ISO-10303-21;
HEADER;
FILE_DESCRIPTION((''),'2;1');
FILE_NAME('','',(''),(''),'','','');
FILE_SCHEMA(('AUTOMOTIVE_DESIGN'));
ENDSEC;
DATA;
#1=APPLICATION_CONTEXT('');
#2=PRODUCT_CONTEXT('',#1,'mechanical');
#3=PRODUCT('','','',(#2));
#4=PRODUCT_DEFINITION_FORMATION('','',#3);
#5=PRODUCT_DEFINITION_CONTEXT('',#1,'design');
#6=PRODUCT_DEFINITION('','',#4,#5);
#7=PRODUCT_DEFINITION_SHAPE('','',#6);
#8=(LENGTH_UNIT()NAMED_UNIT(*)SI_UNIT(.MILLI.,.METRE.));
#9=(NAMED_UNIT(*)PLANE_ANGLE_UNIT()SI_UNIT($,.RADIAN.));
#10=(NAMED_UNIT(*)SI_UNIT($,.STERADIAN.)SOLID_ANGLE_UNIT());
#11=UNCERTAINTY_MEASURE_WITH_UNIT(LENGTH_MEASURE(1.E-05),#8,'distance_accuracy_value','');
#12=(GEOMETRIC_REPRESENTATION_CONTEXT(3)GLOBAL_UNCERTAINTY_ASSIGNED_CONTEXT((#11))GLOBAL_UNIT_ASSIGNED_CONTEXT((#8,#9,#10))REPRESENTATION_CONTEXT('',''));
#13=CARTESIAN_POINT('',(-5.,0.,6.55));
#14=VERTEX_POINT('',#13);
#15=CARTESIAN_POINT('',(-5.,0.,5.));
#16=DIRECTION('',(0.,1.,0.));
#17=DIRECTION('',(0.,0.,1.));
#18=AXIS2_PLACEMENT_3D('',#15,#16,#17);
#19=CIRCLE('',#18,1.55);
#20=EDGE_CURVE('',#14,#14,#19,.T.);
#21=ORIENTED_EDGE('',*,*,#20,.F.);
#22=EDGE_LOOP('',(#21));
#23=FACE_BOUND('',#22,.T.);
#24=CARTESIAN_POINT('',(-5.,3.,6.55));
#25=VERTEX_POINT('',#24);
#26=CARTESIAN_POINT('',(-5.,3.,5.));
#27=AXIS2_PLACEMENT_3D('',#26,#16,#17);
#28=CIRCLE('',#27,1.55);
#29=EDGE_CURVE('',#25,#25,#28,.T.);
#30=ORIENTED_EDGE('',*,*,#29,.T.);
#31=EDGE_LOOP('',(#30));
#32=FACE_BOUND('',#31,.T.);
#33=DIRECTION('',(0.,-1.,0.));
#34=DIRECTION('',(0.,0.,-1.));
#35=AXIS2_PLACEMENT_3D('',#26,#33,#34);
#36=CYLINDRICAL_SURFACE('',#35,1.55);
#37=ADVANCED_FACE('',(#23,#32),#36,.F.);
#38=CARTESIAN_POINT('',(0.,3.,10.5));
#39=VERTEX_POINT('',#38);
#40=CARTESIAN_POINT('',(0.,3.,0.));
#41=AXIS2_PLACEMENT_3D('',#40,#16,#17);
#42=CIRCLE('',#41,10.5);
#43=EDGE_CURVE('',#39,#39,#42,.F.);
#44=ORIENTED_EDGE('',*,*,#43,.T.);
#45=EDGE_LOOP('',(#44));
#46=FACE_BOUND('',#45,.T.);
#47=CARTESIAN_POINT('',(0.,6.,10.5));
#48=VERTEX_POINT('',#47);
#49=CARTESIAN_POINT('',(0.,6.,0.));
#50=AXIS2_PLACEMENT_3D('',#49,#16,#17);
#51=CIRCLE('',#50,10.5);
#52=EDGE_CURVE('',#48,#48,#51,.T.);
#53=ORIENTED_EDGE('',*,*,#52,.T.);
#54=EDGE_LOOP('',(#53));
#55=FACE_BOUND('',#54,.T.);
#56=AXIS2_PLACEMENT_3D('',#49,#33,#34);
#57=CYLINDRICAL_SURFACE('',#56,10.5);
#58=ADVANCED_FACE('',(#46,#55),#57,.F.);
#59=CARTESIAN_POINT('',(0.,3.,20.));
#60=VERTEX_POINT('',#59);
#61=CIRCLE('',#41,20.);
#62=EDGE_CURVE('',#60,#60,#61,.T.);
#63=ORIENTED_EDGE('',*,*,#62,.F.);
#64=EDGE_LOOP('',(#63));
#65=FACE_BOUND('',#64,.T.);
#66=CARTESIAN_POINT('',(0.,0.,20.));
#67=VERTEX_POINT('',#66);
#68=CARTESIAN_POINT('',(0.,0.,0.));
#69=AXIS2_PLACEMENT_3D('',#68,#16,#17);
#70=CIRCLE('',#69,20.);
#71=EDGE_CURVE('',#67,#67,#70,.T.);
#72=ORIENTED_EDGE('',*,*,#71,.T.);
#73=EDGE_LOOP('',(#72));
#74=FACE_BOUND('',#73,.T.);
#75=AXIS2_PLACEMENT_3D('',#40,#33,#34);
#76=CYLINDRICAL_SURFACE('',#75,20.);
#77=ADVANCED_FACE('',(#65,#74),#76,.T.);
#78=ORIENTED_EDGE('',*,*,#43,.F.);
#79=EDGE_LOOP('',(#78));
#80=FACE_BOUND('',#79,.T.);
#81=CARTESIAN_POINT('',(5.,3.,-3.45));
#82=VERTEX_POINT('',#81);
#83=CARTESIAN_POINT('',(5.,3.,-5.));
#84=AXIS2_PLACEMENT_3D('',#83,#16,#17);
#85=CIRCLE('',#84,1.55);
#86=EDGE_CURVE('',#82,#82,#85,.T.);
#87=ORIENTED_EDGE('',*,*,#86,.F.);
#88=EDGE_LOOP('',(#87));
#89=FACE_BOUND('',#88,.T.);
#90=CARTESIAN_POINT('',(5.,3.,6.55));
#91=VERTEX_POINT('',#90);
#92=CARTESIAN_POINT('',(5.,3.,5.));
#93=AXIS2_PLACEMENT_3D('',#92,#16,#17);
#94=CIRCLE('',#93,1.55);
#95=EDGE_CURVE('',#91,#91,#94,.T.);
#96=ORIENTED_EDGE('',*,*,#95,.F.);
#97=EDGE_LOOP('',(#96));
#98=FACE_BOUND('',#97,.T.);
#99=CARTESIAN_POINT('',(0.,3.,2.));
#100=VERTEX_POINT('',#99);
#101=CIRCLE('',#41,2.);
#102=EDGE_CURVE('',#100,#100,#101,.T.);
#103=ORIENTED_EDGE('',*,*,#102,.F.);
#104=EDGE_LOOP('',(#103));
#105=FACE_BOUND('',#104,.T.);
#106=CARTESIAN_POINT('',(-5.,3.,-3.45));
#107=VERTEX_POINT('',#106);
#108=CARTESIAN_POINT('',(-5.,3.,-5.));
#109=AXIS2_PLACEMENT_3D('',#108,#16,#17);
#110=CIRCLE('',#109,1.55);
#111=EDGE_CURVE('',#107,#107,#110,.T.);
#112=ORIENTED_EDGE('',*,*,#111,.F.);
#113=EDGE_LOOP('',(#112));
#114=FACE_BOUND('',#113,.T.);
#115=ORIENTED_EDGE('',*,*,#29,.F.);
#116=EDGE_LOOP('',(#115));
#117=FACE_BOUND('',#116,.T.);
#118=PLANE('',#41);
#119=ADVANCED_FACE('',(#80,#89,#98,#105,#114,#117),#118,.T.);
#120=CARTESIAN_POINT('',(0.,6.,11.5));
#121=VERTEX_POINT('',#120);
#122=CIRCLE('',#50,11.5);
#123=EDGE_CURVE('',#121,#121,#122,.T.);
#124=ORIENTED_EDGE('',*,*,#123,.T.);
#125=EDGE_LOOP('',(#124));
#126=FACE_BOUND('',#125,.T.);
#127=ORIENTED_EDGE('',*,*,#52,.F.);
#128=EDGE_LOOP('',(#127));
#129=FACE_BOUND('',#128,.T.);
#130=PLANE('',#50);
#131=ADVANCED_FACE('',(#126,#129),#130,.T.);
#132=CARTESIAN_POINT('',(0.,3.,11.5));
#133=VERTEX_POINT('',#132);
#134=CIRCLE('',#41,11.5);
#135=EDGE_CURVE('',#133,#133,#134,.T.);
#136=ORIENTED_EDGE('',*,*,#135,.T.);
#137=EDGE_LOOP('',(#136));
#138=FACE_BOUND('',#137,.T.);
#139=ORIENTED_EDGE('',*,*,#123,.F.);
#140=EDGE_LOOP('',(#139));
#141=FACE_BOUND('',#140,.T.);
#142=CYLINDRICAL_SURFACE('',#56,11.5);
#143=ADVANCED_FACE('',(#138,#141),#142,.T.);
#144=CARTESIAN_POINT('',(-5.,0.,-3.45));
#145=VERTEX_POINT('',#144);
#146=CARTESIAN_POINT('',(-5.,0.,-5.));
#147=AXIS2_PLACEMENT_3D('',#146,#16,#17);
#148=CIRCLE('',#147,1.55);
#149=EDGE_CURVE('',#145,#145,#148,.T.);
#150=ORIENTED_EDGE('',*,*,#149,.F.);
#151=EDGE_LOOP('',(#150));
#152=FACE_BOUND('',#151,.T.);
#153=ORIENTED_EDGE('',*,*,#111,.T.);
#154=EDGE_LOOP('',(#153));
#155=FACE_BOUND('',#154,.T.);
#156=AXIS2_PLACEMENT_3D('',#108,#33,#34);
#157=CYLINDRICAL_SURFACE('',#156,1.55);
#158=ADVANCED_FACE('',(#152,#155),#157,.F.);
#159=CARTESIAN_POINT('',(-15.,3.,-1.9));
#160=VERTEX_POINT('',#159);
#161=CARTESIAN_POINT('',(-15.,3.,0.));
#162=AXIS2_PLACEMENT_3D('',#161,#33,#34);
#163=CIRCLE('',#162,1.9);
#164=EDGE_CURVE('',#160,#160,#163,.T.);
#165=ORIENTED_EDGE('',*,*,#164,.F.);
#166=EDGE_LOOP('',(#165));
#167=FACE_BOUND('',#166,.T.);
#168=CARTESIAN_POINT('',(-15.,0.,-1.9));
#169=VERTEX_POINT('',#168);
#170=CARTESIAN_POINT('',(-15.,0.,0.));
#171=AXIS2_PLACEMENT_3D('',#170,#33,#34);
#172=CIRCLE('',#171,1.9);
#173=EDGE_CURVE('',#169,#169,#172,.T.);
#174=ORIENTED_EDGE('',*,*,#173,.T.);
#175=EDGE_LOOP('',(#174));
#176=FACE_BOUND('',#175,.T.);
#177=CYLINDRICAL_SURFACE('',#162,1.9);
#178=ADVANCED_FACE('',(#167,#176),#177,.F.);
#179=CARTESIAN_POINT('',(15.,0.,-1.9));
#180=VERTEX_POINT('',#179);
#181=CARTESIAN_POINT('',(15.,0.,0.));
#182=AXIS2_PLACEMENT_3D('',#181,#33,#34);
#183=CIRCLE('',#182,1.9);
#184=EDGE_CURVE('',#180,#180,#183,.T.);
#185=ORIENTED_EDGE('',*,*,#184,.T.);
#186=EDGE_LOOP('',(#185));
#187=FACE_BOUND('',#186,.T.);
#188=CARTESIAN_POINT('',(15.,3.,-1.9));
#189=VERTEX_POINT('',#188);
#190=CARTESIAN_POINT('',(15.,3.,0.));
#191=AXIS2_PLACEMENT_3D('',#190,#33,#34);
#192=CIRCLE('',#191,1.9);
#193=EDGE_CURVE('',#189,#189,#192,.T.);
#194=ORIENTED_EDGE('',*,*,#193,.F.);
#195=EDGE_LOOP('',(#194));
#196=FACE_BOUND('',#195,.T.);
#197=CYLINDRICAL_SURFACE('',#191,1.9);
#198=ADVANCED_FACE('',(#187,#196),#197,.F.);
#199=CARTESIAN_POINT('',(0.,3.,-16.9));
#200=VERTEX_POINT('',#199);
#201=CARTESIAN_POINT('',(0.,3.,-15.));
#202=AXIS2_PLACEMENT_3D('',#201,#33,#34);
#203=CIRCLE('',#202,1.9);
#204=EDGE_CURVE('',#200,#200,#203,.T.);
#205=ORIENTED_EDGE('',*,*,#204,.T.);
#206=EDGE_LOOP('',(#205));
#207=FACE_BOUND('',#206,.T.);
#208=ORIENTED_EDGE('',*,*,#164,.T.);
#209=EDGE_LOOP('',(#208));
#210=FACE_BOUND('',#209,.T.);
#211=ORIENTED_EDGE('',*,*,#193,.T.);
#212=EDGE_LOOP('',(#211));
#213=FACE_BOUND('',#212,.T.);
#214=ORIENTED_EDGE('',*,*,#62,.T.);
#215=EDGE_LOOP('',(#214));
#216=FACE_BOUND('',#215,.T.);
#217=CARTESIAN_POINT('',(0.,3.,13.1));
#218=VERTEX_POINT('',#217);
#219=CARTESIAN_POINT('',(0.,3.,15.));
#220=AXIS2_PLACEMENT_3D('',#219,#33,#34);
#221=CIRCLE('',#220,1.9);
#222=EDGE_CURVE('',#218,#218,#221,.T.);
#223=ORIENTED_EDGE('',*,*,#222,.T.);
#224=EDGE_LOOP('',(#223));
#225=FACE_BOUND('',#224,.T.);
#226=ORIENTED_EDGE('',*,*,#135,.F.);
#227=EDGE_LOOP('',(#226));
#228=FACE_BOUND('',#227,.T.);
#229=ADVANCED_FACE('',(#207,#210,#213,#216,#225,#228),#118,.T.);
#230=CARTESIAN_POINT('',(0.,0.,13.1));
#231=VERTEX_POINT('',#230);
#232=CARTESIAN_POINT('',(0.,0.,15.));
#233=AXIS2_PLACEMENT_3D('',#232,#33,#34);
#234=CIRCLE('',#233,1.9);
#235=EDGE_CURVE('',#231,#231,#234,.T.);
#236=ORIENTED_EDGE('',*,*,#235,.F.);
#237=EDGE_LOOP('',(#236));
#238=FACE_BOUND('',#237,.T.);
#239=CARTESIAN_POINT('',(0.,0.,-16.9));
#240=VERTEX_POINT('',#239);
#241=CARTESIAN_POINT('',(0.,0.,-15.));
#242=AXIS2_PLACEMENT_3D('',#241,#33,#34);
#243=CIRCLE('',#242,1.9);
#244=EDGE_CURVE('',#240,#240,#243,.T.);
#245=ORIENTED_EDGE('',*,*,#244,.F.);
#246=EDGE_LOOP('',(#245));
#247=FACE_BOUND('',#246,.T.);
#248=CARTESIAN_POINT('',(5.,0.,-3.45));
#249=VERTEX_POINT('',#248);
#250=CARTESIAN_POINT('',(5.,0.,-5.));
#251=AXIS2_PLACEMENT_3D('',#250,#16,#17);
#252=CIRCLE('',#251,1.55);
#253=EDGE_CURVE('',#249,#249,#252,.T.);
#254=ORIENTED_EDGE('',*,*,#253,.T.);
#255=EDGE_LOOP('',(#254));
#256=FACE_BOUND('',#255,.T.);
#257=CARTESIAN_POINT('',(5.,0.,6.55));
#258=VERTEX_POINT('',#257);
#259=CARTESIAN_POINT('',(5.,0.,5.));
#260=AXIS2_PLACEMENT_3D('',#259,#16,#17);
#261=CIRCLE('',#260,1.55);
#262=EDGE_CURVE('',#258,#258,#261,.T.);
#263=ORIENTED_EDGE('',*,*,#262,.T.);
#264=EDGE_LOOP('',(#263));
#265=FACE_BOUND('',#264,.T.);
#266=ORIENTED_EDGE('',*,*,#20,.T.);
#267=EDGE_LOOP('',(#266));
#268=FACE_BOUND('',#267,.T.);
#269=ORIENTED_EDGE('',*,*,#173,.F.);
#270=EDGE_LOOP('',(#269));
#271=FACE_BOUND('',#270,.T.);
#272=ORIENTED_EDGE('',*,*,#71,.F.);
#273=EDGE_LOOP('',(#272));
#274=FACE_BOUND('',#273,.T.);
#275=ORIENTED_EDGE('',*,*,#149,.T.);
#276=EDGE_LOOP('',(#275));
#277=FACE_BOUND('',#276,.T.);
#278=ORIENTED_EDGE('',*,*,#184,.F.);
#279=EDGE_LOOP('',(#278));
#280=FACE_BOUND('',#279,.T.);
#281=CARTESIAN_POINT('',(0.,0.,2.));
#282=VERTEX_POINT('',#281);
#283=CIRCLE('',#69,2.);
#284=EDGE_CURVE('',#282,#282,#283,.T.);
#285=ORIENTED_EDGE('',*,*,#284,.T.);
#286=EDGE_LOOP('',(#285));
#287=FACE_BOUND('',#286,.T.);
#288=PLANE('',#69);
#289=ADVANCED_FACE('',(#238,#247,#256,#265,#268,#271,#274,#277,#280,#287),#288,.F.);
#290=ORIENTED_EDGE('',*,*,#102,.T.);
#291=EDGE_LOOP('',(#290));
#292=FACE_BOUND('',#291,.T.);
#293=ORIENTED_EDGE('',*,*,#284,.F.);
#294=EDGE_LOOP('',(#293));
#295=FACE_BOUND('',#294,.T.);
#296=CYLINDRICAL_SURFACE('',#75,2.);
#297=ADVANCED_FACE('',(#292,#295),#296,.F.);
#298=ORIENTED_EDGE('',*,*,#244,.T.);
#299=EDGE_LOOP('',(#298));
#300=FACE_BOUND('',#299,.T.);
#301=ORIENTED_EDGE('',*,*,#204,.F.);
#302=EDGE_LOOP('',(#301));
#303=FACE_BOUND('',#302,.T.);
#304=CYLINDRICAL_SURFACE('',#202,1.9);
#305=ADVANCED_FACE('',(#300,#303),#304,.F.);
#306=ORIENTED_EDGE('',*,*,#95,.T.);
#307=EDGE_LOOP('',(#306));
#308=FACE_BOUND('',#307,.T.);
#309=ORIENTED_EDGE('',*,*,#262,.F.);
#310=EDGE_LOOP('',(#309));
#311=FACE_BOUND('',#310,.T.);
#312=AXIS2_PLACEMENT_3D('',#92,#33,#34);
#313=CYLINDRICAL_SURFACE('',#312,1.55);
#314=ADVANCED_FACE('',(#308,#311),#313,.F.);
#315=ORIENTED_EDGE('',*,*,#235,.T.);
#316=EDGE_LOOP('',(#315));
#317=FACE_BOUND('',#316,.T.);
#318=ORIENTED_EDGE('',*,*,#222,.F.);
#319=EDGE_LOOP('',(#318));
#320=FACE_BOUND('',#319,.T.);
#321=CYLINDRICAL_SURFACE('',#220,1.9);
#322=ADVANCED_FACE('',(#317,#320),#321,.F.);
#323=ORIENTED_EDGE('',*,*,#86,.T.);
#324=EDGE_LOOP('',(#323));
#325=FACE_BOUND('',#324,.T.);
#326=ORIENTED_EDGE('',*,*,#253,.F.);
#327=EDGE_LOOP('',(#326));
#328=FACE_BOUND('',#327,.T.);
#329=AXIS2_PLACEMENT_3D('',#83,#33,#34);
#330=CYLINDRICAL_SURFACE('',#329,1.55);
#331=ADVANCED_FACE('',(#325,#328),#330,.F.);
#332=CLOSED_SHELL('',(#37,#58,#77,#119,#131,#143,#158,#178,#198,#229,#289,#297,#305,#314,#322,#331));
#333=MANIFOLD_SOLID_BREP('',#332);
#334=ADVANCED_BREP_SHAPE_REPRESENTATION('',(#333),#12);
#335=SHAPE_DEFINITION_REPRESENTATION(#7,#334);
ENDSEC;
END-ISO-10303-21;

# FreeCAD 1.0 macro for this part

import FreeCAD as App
import Part
import Sketcher
Q = App.Units.Quantity

doc = App.newDocument("Part")
body = doc.addObject("PartDesign::Body", "Body")

# Sketch on XZ plane
sketch1 = body.newObject("Sketcher::SketchObject", "Sketch")
sketch1.AttachmentSupport = (doc.getObject("XZ_Plane"), [""])
sketch1.MapMode = "FlatFace"
sketch1.addGeometry(Part.Circle(App.Vector(0, 0, 0), App.Vector(0, 0, 1), 20), False)
sketch1.addGeometry(Part.Circle(App.Vector(0, -15, 0), App.Vector(0, 0, 1), 1.6), False)
sketch1.addGeometry(Part.Circle(App.Vector(-5, -5, 0), App.Vector(0, 0, 1), 1.6), False)
sketch1.addGeometry(Part.Circle(App.Vector(-15, 0, 0), App.Vector(0, 0, 1), 1.6), False)
sketch1.addGeometry(Part.Circle(App.Vector(-5, 5, 0), App.Vector(0, 0, 1), 1.6), False)
sketch1.addGeometry(Part.Circle(App.Vector(0, 0, 0), App.Vector(0, 0, 1), 2), False)
sketch1.addGeometry(Part.Circle(App.Vector(5, -5, 0), App.Vector(0, 0, 1), 1.6), False)
sketch1.addGeometry(Part.Circle(App.Vector(15, 0, 0), App.Vector(0, 0, 1), 1.6), False)
sketch1.addGeometry(Part.Circle(App.Vector(5, 5, 0), App.Vector(0, 0, 1), 1.6), False)
sketch1.addGeometry(Part.Circle(App.Vector(0, 15, 0), App.Vector(0, 0, 1), 1.6), False)
sketch1.addConstraint(Sketcher.Constraint("Coincident", 0, 3, -1, 1))
sketch1.addConstraint(Sketcher.Constraint("Coincident", 5, 3, -1, 1))
sketch1.addConstraint(Sketcher.Constraint("Equal", 1, 3))
sketch1.addConstraint(Sketcher.Constraint("Equal", 2, 4))
sketch1.addConstraint(Sketcher.Constraint("Equal", 4, 6))
sketch1.addConstraint(Sketcher.Constraint("Equal", 3, 7))
sketch1.addConstraint(Sketcher.Constraint("Equal", 6, 8))
sketch1.addConstraint(Sketcher.Constraint("Equal", 7, 9))
sketch1.addConstraint(Sketcher.Constraint("Symmetric", 4, 3, 6, 3, -1, 1))
sketch1.addConstraint(Sketcher.Constraint("Symmetric", 3, 3, 7, 3, -1, 1))
sketch1.addConstraint(Sketcher.Constraint("Symmetric", 2, 3, 8, 3, -1, 1))
sketch1.addConstraint(Sketcher.Constraint("Symmetric", 1, 3, 9, 3, -1, 1))
sketch1.addConstraint(Sketcher.Constraint("Symmetric", 2, 3, 6, 3, -2))
sketch1.addConstraint(Sketcher.Constraint("PointOnObject", 1, 3, -2))
sketch1.addConstraint(Sketcher.Constraint("PointOnObject", 3, 3, -1))
sketch1.addConstraint(Sketcher.Constraint("Diameter", 0, Q("40 mm")))
sketch1.addConstraint(Sketcher.Constraint("Diameter", 5, Q("4 mm")))
sketch1.addConstraint(Sketcher.Constraint("Diameter", 1, Q("3.2 mm")))
sketch1.addConstraint(Sketcher.Constraint("Diameter", 2, Q("3.1 mm")))
sketch1.addConstraint(Sketcher.Constraint("DistanceY", 1, 3, -1, 1, Q("15 mm")))
sketch1.addConstraint(Sketcher.Constraint("DistanceX", 2, 3, -1, 1, Q("5 mm")))
sketch1.addConstraint(Sketcher.Constraint("DistanceY", 2, 3, -1, 1, Q("5 mm")))
sketch1.addConstraint(Sketcher.Constraint("DistanceX", 3, 3, -1, 1, Q("15 mm")))
pad1 = body.newObject("PartDesign::Pad", "Pad")
pad1.Profile = sketch1
pad1.Length = 3
pad1.Reversed = True

# Sketch on XZ plane
sketch2 = body.newObject("Sketcher::SketchObject", "Sketch001")
sketch2.AttachmentSupport = (doc.getObject("XZ_Plane"), [""])
sketch2.MapMode = "FlatFace"
sketch2.AttachmentOffset = App.Placement(App.Vector(0, 0, -3), App.Rotation())
sketch2.addGeometry(Part.Circle(App.Vector(0, 0, 0), App.Vector(0, 0, 1), 12), False)
sketch2.addGeometry(Part.Circle(App.Vector(0, 0, 0), App.Vector(0, 0, 1), 10), False)
sketch2.addConstraint(Sketcher.Constraint("Coincident", 0, 3, -1, 1))
sketch2.addConstraint(Sketcher.Constraint("Coincident", 1, 3, -1, 1))
sketch2.addConstraint(Sketcher.Constraint("Diameter", 0, Q("23 mm")))
sketch2.addConstraint(Sketcher.Constraint("Diameter", 1, Q("21 mm")))
pad2 = body.newObject("PartDesign::Pad", "Pad001")
pad2.Profile = sketch2
pad2.Length = 3
pad2.Reversed = True

# Sketch on XZ plane
sketch3 = body.newObject("Sketcher::SketchObject", "Sketch002")
sketch3.AttachmentSupport = (doc.getObject("XZ_Plane"), [""])
sketch3.MapMode = "FlatFace"
sketch3.addGeometry(Part.Circle(App.Vector(0, 15, 0), App.Vector(0, 0, 1), 1.9), False)
sketch3.addGeometry(Part.Circle(App.Vector(15, 0, 0), App.Vector(0, 0, 1), 1.9), False)
sketch3.addGeometry(Part.Circle(App.Vector(0, -15, 0), App.Vector(0, 0, 1), 1.9), False)
sketch3.addGeometry(Part.Circle(App.Vector(-15, 0, 0), App.Vector(0, 0, 1), 1.9), False)
sketch3.addConstraint(Sketcher.Constraint("Equal", 0, 1))
sketch3.addConstraint(Sketcher.Constraint("Equal", 1, 2))
sketch3.addConstraint(Sketcher.Constraint("Equal", 2, 3))
sketch3.addConstraint(Sketcher.Constraint("Symmetric", 0, 3, 2, 3, -1, 1))
sketch3.addConstraint(Sketcher.Constraint("Symmetric", 1, 3, 3, 3, -1, 1))
sketch3.addConstraint(Sketcher.Constraint("PointOnObject", 0, 3, -2))
sketch3.addConstraint(Sketcher.Constraint("PointOnObject", 1, 3, -1))
sketch3.addConstraint(Sketcher.Constraint("Diameter", 0, Q("3.8 mm")))
sketch3.addConstraint(Sketcher.Constraint("DistanceY", -1, 1, 0, 3, Q("15 mm")))
sketch3.addConstraint(Sketcher.Constraint("DistanceX", -1, 1, 1, 3, Q("15 mm")))
pocket1 = body.newObject("PartDesign::Pocket", "Pocket")
pocket1.Profile = sketch3
pocket1.Length = 3

doc.recompute()
